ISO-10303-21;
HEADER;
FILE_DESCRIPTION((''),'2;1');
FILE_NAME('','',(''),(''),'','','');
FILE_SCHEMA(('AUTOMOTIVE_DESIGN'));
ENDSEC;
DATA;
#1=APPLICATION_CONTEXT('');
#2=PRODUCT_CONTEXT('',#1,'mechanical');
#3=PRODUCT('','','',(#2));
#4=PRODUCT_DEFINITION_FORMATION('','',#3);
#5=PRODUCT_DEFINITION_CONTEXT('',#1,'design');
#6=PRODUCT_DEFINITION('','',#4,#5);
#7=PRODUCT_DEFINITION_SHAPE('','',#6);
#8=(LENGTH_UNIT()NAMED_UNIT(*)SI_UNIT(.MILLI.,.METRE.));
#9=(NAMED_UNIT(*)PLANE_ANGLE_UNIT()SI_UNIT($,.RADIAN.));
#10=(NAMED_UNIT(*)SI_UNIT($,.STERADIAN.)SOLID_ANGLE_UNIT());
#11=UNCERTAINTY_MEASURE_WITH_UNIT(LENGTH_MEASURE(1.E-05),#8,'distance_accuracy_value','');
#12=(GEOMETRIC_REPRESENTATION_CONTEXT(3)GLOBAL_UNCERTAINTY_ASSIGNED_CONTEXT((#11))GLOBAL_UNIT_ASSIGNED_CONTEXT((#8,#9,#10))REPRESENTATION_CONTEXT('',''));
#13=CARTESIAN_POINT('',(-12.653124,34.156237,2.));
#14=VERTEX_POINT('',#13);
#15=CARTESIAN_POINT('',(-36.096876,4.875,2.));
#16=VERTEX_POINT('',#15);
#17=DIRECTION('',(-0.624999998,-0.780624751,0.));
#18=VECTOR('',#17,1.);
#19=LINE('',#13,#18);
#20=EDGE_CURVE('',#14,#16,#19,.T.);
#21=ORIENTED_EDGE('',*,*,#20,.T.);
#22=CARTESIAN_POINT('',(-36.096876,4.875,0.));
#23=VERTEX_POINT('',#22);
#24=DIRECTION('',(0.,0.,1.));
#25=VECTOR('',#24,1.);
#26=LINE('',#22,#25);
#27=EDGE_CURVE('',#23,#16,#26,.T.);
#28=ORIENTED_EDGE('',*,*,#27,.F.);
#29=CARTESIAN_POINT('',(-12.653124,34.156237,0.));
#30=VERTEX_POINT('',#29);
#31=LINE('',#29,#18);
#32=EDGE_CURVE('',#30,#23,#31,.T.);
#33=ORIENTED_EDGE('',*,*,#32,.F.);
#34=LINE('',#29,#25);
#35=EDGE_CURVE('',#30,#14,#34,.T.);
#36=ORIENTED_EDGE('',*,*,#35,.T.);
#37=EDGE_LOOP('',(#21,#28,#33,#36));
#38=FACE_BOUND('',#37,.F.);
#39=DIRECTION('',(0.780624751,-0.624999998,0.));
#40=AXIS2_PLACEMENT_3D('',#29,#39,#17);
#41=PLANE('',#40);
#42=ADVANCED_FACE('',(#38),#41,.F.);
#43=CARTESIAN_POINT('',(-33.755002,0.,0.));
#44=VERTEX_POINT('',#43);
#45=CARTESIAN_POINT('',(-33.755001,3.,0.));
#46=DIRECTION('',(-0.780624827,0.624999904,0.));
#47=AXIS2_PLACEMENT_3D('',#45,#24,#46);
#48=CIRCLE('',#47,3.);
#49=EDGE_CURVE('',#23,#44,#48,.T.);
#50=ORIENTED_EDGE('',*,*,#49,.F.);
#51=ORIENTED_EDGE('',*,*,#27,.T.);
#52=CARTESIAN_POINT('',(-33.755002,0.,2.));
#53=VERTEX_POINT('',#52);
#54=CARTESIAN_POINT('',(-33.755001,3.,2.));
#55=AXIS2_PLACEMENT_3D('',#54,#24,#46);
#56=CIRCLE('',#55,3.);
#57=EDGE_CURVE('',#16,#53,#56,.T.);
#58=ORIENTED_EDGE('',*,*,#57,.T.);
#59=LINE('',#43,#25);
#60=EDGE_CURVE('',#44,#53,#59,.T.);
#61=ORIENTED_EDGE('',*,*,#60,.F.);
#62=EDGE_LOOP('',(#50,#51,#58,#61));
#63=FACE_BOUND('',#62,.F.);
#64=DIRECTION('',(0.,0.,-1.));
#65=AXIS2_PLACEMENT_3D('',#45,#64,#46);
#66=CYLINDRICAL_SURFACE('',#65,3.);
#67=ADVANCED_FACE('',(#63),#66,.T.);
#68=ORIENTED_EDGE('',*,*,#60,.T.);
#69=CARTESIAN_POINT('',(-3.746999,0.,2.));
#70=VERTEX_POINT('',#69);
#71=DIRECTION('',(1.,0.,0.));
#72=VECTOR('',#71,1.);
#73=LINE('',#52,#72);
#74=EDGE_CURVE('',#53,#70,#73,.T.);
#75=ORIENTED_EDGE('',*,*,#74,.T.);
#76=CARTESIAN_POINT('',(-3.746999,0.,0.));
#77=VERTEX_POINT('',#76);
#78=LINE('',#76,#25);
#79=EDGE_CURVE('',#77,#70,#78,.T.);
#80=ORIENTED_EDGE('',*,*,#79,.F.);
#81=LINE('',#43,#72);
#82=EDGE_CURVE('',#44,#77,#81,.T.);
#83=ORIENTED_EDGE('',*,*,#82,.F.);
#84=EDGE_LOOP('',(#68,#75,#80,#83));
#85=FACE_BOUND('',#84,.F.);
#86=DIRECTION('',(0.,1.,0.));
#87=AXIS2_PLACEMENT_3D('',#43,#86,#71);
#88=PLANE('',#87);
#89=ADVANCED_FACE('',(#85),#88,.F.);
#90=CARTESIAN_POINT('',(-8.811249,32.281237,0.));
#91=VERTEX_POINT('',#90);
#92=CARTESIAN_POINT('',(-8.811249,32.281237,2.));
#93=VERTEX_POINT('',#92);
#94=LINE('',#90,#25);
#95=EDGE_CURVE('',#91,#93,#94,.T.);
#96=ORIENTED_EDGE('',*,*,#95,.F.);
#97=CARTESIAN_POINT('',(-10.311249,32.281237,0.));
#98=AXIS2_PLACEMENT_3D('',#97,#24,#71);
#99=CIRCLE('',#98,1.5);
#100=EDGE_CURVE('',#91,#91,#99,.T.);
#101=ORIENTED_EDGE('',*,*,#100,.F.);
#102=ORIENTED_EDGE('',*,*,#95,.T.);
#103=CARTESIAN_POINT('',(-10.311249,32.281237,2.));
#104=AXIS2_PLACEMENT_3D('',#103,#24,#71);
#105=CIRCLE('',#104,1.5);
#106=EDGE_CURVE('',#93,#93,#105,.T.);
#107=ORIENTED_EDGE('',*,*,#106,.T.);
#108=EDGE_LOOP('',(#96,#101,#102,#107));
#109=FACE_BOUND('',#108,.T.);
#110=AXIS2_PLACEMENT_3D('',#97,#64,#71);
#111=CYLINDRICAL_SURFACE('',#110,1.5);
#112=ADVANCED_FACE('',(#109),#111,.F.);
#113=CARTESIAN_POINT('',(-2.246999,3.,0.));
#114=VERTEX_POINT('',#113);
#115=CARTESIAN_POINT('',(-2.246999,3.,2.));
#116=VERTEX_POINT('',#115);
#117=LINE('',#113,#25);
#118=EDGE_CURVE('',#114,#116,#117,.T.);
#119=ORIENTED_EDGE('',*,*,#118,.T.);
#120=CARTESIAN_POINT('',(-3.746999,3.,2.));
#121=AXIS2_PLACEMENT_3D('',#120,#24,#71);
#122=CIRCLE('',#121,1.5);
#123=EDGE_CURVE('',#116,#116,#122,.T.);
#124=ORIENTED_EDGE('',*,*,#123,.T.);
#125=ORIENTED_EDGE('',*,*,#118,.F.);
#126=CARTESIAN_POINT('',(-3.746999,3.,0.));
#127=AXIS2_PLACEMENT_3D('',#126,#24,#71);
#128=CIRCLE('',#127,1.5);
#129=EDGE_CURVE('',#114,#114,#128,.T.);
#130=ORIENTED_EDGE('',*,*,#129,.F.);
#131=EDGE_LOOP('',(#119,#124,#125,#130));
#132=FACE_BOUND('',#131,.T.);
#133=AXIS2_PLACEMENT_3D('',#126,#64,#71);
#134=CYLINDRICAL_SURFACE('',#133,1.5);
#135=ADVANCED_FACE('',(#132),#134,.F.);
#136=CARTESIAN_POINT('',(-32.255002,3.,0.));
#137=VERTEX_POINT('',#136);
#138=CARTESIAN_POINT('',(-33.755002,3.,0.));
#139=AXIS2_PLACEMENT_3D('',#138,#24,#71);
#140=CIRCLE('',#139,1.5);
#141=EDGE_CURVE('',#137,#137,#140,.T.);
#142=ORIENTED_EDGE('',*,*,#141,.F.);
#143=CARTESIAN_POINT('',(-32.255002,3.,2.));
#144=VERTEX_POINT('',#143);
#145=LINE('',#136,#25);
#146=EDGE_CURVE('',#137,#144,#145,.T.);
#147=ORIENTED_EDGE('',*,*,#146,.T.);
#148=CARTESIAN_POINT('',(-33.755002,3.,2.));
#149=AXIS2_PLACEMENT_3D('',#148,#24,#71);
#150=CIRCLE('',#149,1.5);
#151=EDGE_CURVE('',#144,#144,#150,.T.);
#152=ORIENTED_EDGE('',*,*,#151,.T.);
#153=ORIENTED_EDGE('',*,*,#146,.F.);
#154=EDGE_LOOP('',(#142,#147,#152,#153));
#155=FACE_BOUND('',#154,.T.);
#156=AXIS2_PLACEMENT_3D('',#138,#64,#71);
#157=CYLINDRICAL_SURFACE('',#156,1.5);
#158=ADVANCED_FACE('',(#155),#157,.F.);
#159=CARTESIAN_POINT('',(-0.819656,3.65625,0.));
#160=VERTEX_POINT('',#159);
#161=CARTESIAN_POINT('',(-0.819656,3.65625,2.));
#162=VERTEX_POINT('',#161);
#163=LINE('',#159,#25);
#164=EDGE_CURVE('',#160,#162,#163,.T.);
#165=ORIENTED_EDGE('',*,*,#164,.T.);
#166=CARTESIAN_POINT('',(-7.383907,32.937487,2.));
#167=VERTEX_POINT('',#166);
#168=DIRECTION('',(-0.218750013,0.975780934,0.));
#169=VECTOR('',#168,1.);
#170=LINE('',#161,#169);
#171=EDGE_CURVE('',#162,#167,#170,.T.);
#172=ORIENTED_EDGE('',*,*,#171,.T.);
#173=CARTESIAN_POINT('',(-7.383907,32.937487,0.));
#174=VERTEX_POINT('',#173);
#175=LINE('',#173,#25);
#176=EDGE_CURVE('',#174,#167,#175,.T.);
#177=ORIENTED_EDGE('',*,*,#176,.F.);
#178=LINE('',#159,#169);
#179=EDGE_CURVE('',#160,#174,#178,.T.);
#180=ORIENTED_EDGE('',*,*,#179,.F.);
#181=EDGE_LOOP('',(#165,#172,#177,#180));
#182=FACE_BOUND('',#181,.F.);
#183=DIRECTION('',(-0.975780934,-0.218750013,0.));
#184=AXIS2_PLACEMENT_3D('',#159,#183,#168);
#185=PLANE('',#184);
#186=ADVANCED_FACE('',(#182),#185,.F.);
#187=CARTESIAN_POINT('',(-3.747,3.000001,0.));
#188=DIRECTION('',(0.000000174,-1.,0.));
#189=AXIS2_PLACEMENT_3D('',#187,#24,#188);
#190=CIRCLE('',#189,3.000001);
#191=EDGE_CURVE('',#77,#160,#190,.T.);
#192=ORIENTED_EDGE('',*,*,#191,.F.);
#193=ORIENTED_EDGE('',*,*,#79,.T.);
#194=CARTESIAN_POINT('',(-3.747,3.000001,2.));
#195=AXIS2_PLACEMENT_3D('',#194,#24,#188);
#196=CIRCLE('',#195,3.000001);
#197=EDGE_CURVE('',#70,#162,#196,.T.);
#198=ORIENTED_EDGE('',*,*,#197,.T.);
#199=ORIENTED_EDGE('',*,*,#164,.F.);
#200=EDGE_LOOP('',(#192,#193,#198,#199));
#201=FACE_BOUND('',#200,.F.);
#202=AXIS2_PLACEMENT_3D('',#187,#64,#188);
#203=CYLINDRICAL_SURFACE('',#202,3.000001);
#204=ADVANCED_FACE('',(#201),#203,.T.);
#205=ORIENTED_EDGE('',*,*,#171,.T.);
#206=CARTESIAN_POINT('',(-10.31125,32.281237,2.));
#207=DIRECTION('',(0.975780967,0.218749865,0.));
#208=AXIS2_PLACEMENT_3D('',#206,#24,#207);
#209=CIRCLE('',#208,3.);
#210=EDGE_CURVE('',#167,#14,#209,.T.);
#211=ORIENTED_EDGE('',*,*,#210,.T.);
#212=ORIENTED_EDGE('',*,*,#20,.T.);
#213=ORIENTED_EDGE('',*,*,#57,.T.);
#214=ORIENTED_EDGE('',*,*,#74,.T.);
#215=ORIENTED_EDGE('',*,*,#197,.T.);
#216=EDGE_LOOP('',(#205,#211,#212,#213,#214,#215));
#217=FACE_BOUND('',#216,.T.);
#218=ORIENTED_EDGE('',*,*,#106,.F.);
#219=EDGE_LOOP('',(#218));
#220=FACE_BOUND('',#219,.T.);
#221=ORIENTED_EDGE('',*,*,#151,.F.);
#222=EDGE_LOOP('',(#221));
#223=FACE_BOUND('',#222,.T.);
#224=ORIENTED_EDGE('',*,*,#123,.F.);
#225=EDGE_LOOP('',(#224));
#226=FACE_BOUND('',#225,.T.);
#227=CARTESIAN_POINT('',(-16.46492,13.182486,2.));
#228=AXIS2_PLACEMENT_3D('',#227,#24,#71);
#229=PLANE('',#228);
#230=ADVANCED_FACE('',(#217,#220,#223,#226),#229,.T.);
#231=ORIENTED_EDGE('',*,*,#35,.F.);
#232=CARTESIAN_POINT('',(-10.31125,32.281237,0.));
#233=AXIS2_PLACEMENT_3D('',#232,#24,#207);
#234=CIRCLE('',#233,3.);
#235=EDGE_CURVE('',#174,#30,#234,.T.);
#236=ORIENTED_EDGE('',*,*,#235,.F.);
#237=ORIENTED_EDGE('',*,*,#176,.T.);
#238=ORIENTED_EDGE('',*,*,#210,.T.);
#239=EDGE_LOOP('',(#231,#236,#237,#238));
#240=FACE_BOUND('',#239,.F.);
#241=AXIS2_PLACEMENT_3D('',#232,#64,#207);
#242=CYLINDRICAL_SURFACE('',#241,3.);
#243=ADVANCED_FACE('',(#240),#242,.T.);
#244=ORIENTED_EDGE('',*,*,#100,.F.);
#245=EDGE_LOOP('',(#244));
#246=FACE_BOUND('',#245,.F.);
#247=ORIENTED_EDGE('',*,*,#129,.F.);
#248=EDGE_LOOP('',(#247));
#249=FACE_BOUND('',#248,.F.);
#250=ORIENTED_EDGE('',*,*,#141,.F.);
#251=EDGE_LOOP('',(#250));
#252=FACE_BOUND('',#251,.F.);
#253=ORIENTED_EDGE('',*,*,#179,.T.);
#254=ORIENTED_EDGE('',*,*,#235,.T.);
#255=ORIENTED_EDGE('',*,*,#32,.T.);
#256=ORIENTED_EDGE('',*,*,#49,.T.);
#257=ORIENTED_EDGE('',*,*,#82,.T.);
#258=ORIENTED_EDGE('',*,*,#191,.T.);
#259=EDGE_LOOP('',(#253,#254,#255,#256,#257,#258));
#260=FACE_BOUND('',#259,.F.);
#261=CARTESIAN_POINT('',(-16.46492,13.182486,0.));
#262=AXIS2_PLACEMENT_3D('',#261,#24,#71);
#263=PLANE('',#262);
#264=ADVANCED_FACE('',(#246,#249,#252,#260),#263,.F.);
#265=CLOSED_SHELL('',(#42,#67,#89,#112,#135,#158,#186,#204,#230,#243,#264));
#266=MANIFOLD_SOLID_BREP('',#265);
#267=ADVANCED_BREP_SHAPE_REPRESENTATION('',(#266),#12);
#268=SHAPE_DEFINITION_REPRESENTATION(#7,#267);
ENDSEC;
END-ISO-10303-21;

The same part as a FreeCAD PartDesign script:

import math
import FreeCAD as App
import Part
import Sketcher

V = App.Vector
Q = App.Units.Quantity

doc = App.newDocument("Part")
params = doc.addObject("Spreadsheet::Sheet", "Params")
for row, (alias, value) in enumerate([
    ("sketch1_diameter", "3 mm"),
    ("sketch1_diameter2", "3 mm"),
    ("sketch1_diameter3", "3 mm"),
    ("sketch1_radius", "3.000001 mm"),
    ("sketch1_radius2", "3 mm"),
    ("pad1_length", "2 mm"),
], start=1):
    params.set(f"A{row}", alias)
    params.set(f"B{row}", "=" + value)
    params.setAlias(f"B{row}", alias)

body = doc.addObject("PartDesign::Body", "Body")

sketch1 = body.newObject("Sketcher::SketchObject", "Sketch")
sketch1.AttachmentSupport = (doc.getObject("XY_Plane"), [""])
sketch1.MapMode = "FlatFace"
sketch1.addGeometry([
    Part.ArcOfCircle(Part.Circle(V(-3.747, 3.000001, 0), V(0, 0, 1), 3.000001), math.radians(-89.99999), math.radians(12.635612)),
    Part.LineSegment(V(-0.819656, 3.65625, 0), V(-7.383907, 32.937487, 0)),
    Part.ArcOfCircle(Part.Circle(V(-10.31125, 32.281237, 0), V(0, 0, 1), 3), math.radians(12.635617), math.radians(141.31782)),
    Part.LineSegment(V(-12.653124, 34.156237, 0), V(-36.096876, 4.875, 0)),
    Part.ArcOfCircle(Part.Circle(V(-33.755001, 3, 0), V(0, 0, 1), 3), math.radians(141.31782), math.radians(269.999988)),
    Part.LineSegment(V(-33.755002, 0, 0), V(-3.746999, 0, 0)),
    Part.Circle(V(-33.755002, 3, 0), V(0, 0, 1), 1.5),
    Part.Circle(V(-3.746999, 3, 0), V(0, 0, 1), 1.5),
    Part.Circle(V(-10.311249, 32.281237, 0), V(0, 0, 1), 1.5),
], False)
sketch1.addConstraint([
    Sketcher.Constraint("Coincident", 0, 2, 1, 1),
    Sketcher.Constraint("Coincident", 1, 2, 2, 1),
    Sketcher.Constraint("Coincident", 2, 2, 3, 1),
    Sketcher.Constraint("Coincident", 3, 2, 4, 1),
    Sketcher.Constraint("Coincident", 4, 2, 5, 1),
    Sketcher.Constraint("Coincident", 5, 2, 0, 1),
    Sketcher.Constraint("Horizontal", 5),
    Sketcher.Constraint("Coincident", 6, 3, 4, 3),
    Sketcher.Constraint("Coincident", 7, 3, 0, 3),
    Sketcher.Constraint("Coincident", 8, 3, 2, 3),
    Sketcher.Constraint("PointOnObject", 4, 2, -1),
    Sketcher.Constraint("Diameter", 6, Q("3 mm")),
    Sketcher.Constraint("Diameter", 7, Q("3 mm")),
    Sketcher.Constraint("Diameter", 8, Q("3 mm")),
    Sketcher.Constraint("Radius", 0, Q("3.000001 mm")),
    Sketcher.Constraint("Radius", 2, Q("3 mm")),
    Sketcher.Constraint("Radius", 4, Q("3 mm")),
    Sketcher.Constraint("DistanceX", 0, 3, -1, 1, Q("3.747 mm")),
    Sketcher.Constraint("DistanceX", 4, 3, -1, 1, Q("33.755001 mm")),
    Sketcher.Constraint("DistanceY", -1, 1, 3, 2, Q("4.875 mm")),
    Sketcher.Constraint("DistanceX", 4, 2, -1, 1, Q("33.755002 mm")),
    Sketcher.Constraint("DistanceX", 5, 2, -1, 1, Q("3.746999 mm")),
    Sketcher.Constraint("DistanceY", 2, 3, 2, 2, Q("1.875 mm")),
    Sketcher.Constraint("DistanceX", 2, 3, -1, 1, Q("10.31125 mm")),
    Sketcher.Constraint("DistanceY", -1, 1, 0, 2, Q("3.65625 mm")),
    Sketcher.Constraint("DistanceY", 8, 3, 1, 2, Q("0.65625 mm")),
    Sketcher.Constraint("Distance", 1, Q("30.008003 mm")),
])
sketch1.setExpression("Constraints[11]", "Params.sketch1_diameter")
sketch1.setExpression("Constraints[12]", "Params.sketch1_diameter2")
sketch1.setExpression("Constraints[13]", "Params.sketch1_diameter3")
sketch1.setExpression("Constraints[14]", "Params.sketch1_radius")
sketch1.setExpression("Constraints[15]", "Params.sketch1_radius2")
pad1 = body.newObject("PartDesign::Pad", "Pad")
pad1.Profile = sketch1
pad1.setExpression("Length", "Params.pad1_length")

doc.recompute()
